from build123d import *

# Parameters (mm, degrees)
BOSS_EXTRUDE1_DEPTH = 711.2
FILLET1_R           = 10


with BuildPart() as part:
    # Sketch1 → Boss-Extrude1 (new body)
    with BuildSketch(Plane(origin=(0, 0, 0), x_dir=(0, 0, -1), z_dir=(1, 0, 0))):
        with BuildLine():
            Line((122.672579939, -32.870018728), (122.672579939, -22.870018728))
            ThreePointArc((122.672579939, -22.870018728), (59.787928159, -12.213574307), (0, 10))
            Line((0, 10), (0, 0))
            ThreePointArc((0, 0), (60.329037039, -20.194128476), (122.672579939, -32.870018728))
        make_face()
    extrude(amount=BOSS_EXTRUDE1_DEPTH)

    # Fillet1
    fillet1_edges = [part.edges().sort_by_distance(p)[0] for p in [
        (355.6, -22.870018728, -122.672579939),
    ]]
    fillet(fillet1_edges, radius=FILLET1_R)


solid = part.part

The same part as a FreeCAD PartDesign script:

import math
import FreeCAD as App
import Part
import Sketcher

V = App.Vector


def edges_at(feature, points):
    """Names of the edges that pass closest to the given points."""
    edges = feature.Shape.Edges
    near = lambda p: min(range(len(edges)), key=lambda i: edges[i].distToShape(Part.Vertex(*p))[0])
    return sorted({f"Edge{near(p) + 1}" for p in points})

doc = App.newDocument("Part")
body = doc.addObject("PartDesign::Body", "Body")

sketch1 = body.newObject("Sketcher::SketchObject", "Sketch")
sketch1.AttachmentSupport = (doc.getObject("YZ_Plane"), [""])
sketch1.MapMode = "FlatFace"
sketch1.addGeometry(Part.LineSegment(V(-33, -123, 0), V(-23, -123, 0)), False)
sketch1.addGeometry(Part.ArcOfCircle(Part.Circle(V(316, -148, 0), V(0, 0, 1), 340), math.radians(154), math.radians(176)), False)
sketch1.addGeometry(Part.LineSegment(V(10, 0, 0), V(0, 0, 0)), False)
sketch1.addGeometry(Part.ArcOfCircle(Part.Circle(V(482, -195, 0), V(0, 0, 1), 520), math.radians(157.99), math.radians(172.01)), False)
sketch1.addConstraint(Sketcher.Constraint("Coincident", 0, 2, 1, 2))
sketch1.addConstraint(Sketcher.Constraint("Coincident", 1, 1, 2, 1))
sketch1.addConstraint(Sketcher.Constraint("Coincident", 2, 2, 3, 1))
sketch1.addConstraint(Sketcher.Constraint("Coincident", 3, 2, 0, 1))
sketch1.addConstraint(Sketcher.Constraint("Horizontal", 0))
sketch1.addConstraint(Sketcher.Constraint("Horizontal", 2))
sketch1.addConstraint(Sketcher.Constraint("Coincident", 2, 2, -1, 1))
sketch1.addConstraint(Sketcher.Constraint("Equal", 0, 2))
sketch1.addConstraint(Sketcher.Constraint("Radius", 1, 340.0))
sketch1.addConstraint(Sketcher.Constraint("Radius", 3, 520.0))
sketch1.addConstraint(Sketcher.Constraint("DistanceX", 0, 1, 0, 2, 10.0))
sketch1.addConstraint(Sketcher.Constraint("DistanceX", -1, 1, 3, 3, 482.087301))
sketch1.addConstraint(Sketcher.Constraint("DistanceX", 0, 2, -1, 1, 22.870019))
pad1 = body.newObject("PartDesign::Pad", "Pad")
pad1.Profile = sketch1
pad1.Length = 711.2
doc.recompute()

fillet = body.newObject("PartDesign::Fillet", "Fillet")
fillet.Base = (pad1, edges_at(pad1, [(355.6, -22.87, -122.673)]))
fillet.Radius = 10

doc.recompute()
